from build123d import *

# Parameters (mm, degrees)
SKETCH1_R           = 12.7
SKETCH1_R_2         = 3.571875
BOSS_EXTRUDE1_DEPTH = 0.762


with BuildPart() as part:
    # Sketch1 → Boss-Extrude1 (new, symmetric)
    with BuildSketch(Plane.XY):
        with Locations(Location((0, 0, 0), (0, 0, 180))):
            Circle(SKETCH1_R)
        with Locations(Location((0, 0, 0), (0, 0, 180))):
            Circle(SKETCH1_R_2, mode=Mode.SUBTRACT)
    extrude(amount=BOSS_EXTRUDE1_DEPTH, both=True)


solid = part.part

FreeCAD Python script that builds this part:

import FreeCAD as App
import Part
import Sketcher
from FreeCAD import Vector
Q = App.Units.Quantity

doc = App.newDocument("Part")
params = doc.addObject("Spreadsheet::Sheet", "Params")
for row, (alias, value) in enumerate([
    ("sketch1_diameter", "1 in"),
    ("sketch1_diameter2", "0.28125 in"),
    ("pad1_length", "0.06 in"),
], start=1):
    params.set(f"A{row}", alias)
    params.set(f"B{row}", "=" + value)
    params.setAlias(f"B{row}", alias)

body = doc.addObject("PartDesign::Body", "Body")

sketch1 = body.newObject("Sketcher::SketchObject", "Sketch")
sketch1.AttachmentSupport = (doc.getObject("XY_Plane"), [""])
sketch1.MapMode = "FlatFace"
sketch1.addGeometry(Part.Circle(Vector(0, 0, 0), Vector(0, 0, 1), 12.7), False)
sketch1.addGeometry(Part.Circle(Vector(0, 0, 0), Vector(0, 0, 1), 3.6), False)
sketch1.addConstraint(Sketcher.Constraint("Coincident", 0, 3, -1, 1))
sketch1.addConstraint(Sketcher.Constraint("Coincident", 1, 3, -1, 1))
sketch1.addConstraint(Sketcher.Constraint("Diameter", 0, Q("1 in")))
sketch1.addConstraint(Sketcher.Constraint("Diameter", 1, Q("0.28125 in")))
sketch1.setExpression("Constraints[2]", "Params.sketch1_diameter")
sketch1.setExpression("Constraints[3]", "Params.sketch1_diameter2")
pad1 = body.newObject("PartDesign::Pad", "Pad")
pad1.Profile = sketch1
pad1.setExpression("Length", "Params.pad1_length")
pad1.Midplane = True

doc.recompute()
